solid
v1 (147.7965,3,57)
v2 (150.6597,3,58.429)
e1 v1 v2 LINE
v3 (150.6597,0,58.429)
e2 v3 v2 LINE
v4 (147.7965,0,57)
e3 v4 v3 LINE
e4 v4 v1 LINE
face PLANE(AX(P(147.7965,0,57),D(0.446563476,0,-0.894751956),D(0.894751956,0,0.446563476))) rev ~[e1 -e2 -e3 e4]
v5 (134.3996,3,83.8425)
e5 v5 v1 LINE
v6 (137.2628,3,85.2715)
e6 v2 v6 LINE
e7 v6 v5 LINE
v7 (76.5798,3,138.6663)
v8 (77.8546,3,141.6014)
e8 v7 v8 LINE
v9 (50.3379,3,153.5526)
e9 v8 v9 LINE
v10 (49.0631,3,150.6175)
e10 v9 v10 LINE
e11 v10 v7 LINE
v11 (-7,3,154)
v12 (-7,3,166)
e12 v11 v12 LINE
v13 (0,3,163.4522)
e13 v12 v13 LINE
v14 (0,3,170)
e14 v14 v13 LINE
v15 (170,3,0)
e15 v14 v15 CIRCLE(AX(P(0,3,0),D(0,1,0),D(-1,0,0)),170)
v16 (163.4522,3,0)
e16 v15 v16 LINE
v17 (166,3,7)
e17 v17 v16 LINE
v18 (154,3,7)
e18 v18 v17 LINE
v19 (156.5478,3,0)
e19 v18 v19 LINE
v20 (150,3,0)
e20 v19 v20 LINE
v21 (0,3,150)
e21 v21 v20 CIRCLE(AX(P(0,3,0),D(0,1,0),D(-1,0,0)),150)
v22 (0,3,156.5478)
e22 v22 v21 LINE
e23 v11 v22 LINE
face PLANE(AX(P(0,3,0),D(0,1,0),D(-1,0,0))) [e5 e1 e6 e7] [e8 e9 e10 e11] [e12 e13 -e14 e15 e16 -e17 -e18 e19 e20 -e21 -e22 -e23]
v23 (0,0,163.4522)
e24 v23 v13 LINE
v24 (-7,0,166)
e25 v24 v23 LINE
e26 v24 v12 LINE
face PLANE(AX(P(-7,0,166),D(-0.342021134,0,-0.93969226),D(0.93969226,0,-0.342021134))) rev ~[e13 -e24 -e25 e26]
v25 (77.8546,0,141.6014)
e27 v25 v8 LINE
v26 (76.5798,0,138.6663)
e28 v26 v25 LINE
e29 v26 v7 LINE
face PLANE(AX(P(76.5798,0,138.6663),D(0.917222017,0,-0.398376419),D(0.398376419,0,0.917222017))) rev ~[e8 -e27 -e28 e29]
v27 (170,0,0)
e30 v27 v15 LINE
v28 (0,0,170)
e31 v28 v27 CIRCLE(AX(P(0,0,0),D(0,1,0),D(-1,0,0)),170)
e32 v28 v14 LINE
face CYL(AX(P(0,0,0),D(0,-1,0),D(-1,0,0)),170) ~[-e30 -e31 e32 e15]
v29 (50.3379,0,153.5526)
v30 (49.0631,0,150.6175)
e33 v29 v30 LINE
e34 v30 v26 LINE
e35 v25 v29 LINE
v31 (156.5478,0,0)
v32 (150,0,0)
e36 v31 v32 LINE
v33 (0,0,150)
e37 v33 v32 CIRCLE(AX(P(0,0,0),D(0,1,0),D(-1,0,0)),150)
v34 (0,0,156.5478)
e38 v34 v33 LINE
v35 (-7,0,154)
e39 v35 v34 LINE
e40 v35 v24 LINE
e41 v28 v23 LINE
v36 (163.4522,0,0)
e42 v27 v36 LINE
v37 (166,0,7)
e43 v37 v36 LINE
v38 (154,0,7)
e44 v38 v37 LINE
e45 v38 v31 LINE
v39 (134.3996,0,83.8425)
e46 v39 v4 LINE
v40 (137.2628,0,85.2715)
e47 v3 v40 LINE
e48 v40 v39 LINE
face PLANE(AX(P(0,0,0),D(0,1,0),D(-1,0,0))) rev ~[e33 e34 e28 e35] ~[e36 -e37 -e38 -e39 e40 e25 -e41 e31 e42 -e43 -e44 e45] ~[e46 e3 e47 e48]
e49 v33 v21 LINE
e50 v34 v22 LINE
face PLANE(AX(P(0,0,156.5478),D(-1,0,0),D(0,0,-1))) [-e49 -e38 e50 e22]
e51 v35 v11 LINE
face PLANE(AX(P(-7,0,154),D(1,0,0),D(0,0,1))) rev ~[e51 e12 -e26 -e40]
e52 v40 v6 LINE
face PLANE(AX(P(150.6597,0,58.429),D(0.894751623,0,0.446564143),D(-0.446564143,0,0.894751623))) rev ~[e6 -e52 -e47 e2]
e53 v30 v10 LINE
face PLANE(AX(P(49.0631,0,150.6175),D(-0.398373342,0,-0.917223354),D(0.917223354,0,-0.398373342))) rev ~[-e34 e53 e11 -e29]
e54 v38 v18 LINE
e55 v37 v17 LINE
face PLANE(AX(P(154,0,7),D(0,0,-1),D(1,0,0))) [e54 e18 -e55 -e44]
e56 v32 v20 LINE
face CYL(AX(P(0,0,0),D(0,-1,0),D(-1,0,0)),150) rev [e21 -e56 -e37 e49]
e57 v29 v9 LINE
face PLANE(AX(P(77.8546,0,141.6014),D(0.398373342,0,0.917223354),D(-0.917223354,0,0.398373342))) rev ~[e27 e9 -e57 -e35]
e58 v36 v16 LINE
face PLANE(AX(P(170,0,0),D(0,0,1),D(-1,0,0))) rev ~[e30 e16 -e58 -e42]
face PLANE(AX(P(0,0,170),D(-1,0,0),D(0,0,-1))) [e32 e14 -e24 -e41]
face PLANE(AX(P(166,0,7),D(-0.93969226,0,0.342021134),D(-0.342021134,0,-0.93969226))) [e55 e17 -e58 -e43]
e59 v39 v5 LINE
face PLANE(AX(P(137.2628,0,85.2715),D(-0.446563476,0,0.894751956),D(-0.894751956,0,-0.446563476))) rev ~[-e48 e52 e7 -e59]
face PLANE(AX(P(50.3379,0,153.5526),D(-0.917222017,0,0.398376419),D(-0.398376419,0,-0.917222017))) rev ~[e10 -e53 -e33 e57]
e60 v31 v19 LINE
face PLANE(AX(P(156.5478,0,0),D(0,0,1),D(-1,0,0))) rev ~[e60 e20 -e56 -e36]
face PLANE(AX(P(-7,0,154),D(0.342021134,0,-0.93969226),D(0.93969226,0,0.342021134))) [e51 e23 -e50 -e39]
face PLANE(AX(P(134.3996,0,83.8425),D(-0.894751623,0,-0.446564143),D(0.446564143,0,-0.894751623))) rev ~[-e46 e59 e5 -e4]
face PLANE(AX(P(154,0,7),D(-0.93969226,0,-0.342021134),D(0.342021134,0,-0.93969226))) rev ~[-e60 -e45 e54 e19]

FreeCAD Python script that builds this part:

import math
import FreeCAD as App
import Part
import Sketcher
from FreeCAD import Vector

doc = App.newDocument("Part")
body = doc.addObject("PartDesign::Body", "Body")

# Sketch on XZ plane
sketch1 = body.newObject("Sketcher::SketchObject", "Sketch")
sketch1.AttachmentSupport = (doc.getObject("XZ_Plane"), [""])
sketch1.MapMode = "FlatFace"
sketch1.addGeometry([
    Part.ArcOfCircle(Part.Circle(Vector(0, 0, 0), Vector(0, 0, 1), 150), math.radians(0), math.radians(90)),  # 0
    Part.LineSegment(Vector(0, 150, 0), Vector(0, 156.5478, 0)),  # 1
    Part.LineSegment(Vector(0, 156.5478, 0), Vector(-7, 154, 0)),  # 2
    Part.LineSegment(Vector(-7, 154, 0), Vector(-7, 166, 0)),  # 3
    Part.LineSegment(Vector(-7, 166, 0), Vector(0, 163.4522, 0)),  # 4
    Part.LineSegment(Vector(0, 163.4522, 0), Vector(0, 170, 0)),  # 5
    Part.ArcOfCircle(Part.Circle(Vector(0, 0, 0), Vector(0, 0, 1), 170), math.radians(0), math.radians(90)),  # 6
    Part.LineSegment(Vector(170, 0, 0), Vector(163.4522, 0, 0)),  # 7
    Part.LineSegment(Vector(163.4522, 0, 0), Vector(166, 7, 0)),  # 8
    Part.LineSegment(Vector(166, 7, 0), Vector(154, 7, 0)),  # 9
    Part.LineSegment(Vector(154, 7, 0), Vector(156.5478, 0, 0)),  # 10
    Part.LineSegment(Vector(156.5478, 0, 0), Vector(150, 0, 0)),  # 11
    Part.LineSegment(Vector(147.7965, 57, 0), Vector(150.6597, 58.429, 0)),  # 12
    Part.LineSegment(Vector(150.6597, 58.429, 0), Vector(137.2628, 85.2715, 0)),  # 13
    Part.LineSegment(Vector(137.2628, 85.2715, 0), Vector(134.3996, 83.8425, 0)),  # 14
    Part.LineSegment(Vector(134.3996, 83.8425, 0), Vector(147.7965, 57, 0)),  # 15
    Part.LineSegment(Vector(76.5798, 138.6663, 0), Vector(77.8546, 141.6014, 0)),  # 16
    Part.LineSegment(Vector(77.8546, 141.6014, 0), Vector(50.3379, 153.5526, 0)),  # 17
    Part.LineSegment(Vector(50.3379, 153.5526, 0), Vector(49.0631, 150.6175, 0)),  # 18
    Part.LineSegment(Vector(49.0631, 150.6175, 0), Vector(76.5798, 138.6663, 0)),  # 19
], False)
sketch1.addConstraint([
    Sketcher.Constraint("Coincident", 0, 2, 1, 1),
    Sketcher.Constraint("Coincident", 1, 2, 2, 1),
    Sketcher.Constraint("Coincident", 2, 2, 3, 1),
    Sketcher.Constraint("Coincident", 3, 2, 4, 1),
    Sketcher.Constraint("Coincident", 4, 2, 5, 1),
    Sketcher.Constraint("Coincident", 5, 2, 6, 2),
    Sketcher.Constraint("Coincident", 6, 1, 7, 1),
    Sketcher.Constraint("Coincident", 7, 2, 8, 1),
    Sketcher.Constraint("Coincident", 8, 2, 9, 1),
    Sketcher.Constraint("Coincident", 9, 2, 10, 1),
    Sketcher.Constraint("Coincident", 10, 2, 11, 1),
    Sketcher.Constraint("Coincident", 11, 2, 0, 1),
    Sketcher.Constraint("Coincident", 12, 2, 13, 1),
    Sketcher.Constraint("Coincident", 13, 2, 14, 1),
    Sketcher.Constraint("Coincident", 14, 2, 15, 1),
    Sketcher.Constraint("Coincident", 15, 2, 12, 1),
    Sketcher.Constraint("Coincident", 16, 2, 17, 1),
    Sketcher.Constraint("Coincident", 17, 2, 18, 1),
    Sketcher.Constraint("Coincident", 18, 2, 19, 1),
    Sketcher.Constraint("Coincident", 19, 2, 16, 1),
    Sketcher.Constraint("Vertical", 1),
    Sketcher.Constraint("Vertical", 3),
    Sketcher.Constraint("Vertical", 5),
    Sketcher.Constraint("Horizontal", 7),
    Sketcher.Constraint("Horizontal", 9),
    Sketcher.Constraint("Horizontal", 11),
    Sketcher.Constraint("Coincident", 0, 3, -1, 1),
    Sketcher.Constraint("Coincident", 6, 3, -1, 1),
    Sketcher.Constraint("PointOnObject", 0, 2, -2),
    Sketcher.Constraint("PointOnObject", 4, 2, -2),
    Sketcher.Constraint("PointOnObject", 6, 1, -1),
    Sketcher.Constraint("PointOnObject", 10, 2, -1),
    Sketcher.Constraint("Radius", 0, 150.0),
    Sketcher.Constraint("Radius", 6, 170.0),
    Sketcher.Constraint("DistanceX", 9, 2, 9, 1, 12.0),
    Sketcher.Constraint("DistanceY", 3, 1, 3, 2, 12.0),
    Sketcher.Constraint("Distance", 13, 30.0),
    Sketcher.Constraint("Distance", 15, 30.0),
    Sketcher.Constraint("Distance", 17, 30.0),
    Sketcher.Constraint("Distance", 19, 30.0),
    Sketcher.Constraint("DistanceX", 2, 2, -1, 1, 7.0),
    Sketcher.Constraint("DistanceY", -1, 1, 8, 2, 7.0),
    Sketcher.Constraint("DistanceY", 9, 2, 15, 2, 50.0),
    Sketcher.Constraint("Distance", 12, 3.2),
    Sketcher.Constraint("Distance", 14, 3.2),
    Sketcher.Constraint("Distance", 16, 3.2),
    Sketcher.Constraint("Distance", 18, 3.2),
    Sketcher.Constraint("DistanceY", -1, 1, 2, 2, 154.0),
    Sketcher.Constraint("DistanceX", -1, 1, 8, 2, 166.0),
    Sketcher.Constraint("DistanceX", 14, 2, 12, 2, 16.26),
    Sketcher.Constraint("DistanceY", 13, 2, 16, 2, 56.33),
    Sketcher.Constraint("DistanceX", 7, 2, 7, 1, 6.5478),
    Sketcher.Constraint("DistanceX", 11, 2, 11, 1, 6.5478),
    Sketcher.Constraint("DistanceY", 1, 1, 1, 2, 6.5478),
    Sketcher.Constraint("DistanceY", 5, 1, 5, 2, 6.5478),
    Sketcher.Constraint("DistanceY", -1, 1, 12, 2, 58.429),
    Sketcher.Constraint("DistanceX", -1, 1, 17, 2, 50.338),
    Sketcher.Constraint("DistanceX", -1, 1, 18, 2, 49.063),
    Sketcher.Constraint("DistanceX", 12, 2, 10, 2, 5.888),
    Sketcher.Constraint("DistanceX", 16, 2, 14, 2, 56.545),
])
pad1 = body.newObject("PartDesign::Pad", "Pad")
pad1.Profile = sketch1
pad1.Length = 3
pad1.Reversed = True

doc.recompute()
